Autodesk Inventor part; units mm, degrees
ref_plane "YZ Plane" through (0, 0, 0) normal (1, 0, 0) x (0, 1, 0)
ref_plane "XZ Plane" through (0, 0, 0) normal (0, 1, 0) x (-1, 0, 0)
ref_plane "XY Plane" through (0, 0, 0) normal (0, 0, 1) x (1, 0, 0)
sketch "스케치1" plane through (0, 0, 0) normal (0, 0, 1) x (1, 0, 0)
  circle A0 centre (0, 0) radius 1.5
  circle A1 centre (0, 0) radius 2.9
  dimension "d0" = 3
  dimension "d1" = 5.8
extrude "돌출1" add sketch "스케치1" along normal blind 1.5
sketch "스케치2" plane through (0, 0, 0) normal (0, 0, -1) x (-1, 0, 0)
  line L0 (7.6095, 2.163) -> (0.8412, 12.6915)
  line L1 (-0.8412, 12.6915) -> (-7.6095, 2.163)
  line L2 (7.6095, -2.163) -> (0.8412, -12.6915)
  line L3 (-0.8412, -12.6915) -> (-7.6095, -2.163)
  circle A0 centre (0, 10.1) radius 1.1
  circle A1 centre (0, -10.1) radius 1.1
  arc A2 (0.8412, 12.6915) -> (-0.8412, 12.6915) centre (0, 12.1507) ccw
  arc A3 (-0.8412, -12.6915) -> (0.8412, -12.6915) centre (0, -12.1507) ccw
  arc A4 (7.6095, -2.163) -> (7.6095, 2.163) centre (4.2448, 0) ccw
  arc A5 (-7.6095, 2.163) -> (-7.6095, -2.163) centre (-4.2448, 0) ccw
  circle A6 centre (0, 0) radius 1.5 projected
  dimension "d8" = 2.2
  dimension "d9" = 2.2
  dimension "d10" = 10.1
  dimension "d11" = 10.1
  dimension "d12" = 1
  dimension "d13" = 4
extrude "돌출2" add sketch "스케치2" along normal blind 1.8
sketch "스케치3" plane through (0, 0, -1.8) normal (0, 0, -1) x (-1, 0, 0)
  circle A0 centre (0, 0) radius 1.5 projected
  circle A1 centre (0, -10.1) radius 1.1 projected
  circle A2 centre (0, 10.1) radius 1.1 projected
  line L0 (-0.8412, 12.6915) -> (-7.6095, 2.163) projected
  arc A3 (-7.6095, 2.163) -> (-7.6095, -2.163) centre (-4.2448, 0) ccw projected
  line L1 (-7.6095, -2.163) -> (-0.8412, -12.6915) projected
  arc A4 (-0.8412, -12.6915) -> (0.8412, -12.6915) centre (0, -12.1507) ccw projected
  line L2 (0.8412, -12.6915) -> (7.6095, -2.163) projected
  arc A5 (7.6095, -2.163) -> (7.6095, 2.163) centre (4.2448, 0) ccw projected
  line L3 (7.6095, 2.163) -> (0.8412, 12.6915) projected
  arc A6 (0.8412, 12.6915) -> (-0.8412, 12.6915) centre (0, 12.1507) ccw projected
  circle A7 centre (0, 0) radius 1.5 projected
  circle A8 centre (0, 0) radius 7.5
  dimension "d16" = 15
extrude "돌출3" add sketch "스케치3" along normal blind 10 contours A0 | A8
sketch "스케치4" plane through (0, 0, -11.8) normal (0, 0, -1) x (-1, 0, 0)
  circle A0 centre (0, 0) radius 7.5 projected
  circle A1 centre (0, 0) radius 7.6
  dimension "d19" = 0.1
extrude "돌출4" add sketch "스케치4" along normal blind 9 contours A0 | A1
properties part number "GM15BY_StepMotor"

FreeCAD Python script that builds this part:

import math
import FreeCAD as App
import Part
import Sketcher

V = App.Vector
Q = App.Units.Quantity

doc = App.newDocument("Part")
params = doc.addObject("Spreadsheet::Sheet", "Params")
for row, (alias, value) in enumerate([
    ("sketch1_diameter", "3 mm"),
    ("sketch1_diameter2", "5.8 mm"),
    ("pad1_length", "1.5 mm"),
    ("sketch2_radius", "4 mm"),
    ("sketch2_radius2", "1 mm"),
    ("sketch2_diameter", "2.2 mm"),
    ("sketch2_diameter2", "3 mm"),
    ("pad2_length", "1.8 mm"),
    ("sketch3_diameter", "15 mm"),
    ("pad3_length", "10 mm"),
    ("sketch4_diameter", "15.2 mm"),
    ("pad4_length", "9 mm"),
], start=1):
    params.set(f"A{row}", alias)
    params.set(f"B{row}", "=" + value)
    params.setAlias(f"B{row}", alias)

body = doc.addObject("PartDesign::Body", "Body")

sketch1 = body.newObject("Sketcher::SketchObject", "Sketch")
sketch1.AttachmentSupport = (doc.getObject("XY_Plane"), [""])
sketch1.MapMode = "FlatFace"
sketch1.addGeometry(Part.Circle(V(0, 0, 0), V(0, 0, 1), 2.9), False)
sketch1.addGeometry(Part.Circle(V(0, 0, 0), V(0, 0, 1), 1.5), False)
sketch1.addConstraint(Sketcher.Constraint("Coincident", 0, 3, -1, 1))
sketch1.addConstraint(Sketcher.Constraint("Coincident", 1, 3, -1, 1))
sketch1.addConstraint(Sketcher.Constraint("Diameter", 1, Q("3 mm")))
sketch1.addConstraint(Sketcher.Constraint("Diameter", 0, Q("5.8 mm")))
sketch1.setExpression("Constraints[2]", "Params.sketch1_diameter")
sketch1.setExpression("Constraints[3]", "Params.sketch1_diameter2")
pad1 = body.newObject("PartDesign::Pad", "Pad")
pad1.Profile = sketch1
pad1.setExpression("Length", "Params.pad1_length")

sketch2 = body.newObject("Sketcher::SketchObject", "Sketch001")
sketch2.AttachmentSupport = (doc.getObject("XY_Plane"), [""])
sketch2.MapMode = "FlatFace"
sketch2.addGeometry(Part.ArcOfCircle(Part.Circle(V(-4.2, 0, 0), V(0, 0, 1), 4), math.radians(147), math.radians(213)), False)
sketch2.addGeometry(Part.LineSegment(V(-7.6, 2.2, 0), V(-0.8, 12.7, 0)), False)
sketch2.addGeometry(Part.ArcOfCircle(Part.Circle(V(0, 12.2, 0), V(0, 0, 1), 1), math.radians(33), math.radians(147)), False)
sketch2.addGeometry(Part.LineSegment(V(0.8, 12.7, 0), V(7.6, 2.2, 0)), False)
sketch2.addGeometry(Part.ArcOfCircle(Part.Circle(V(4.2, 0, 0), V(0, 0, 1), 4), math.radians(-33), math.radians(33)), False)
sketch2.addGeometry(Part.LineSegment(V(7.6, -2.2, 0), V(0.8, -12.7, 0)), False)
sketch2.addGeometry(Part.ArcOfCircle(Part.Circle(V(0, -12.2, 0), V(0, 0, 1), 1), math.radians(-147), math.radians(-33)), False)
sketch2.addGeometry(Part.LineSegment(V(-0.8, -12.7, 0), V(-7.6, -2.2, 0)), False)
sketch2.addGeometry(Part.Circle(V(0, -10.1, 0), V(0, 0, 1), 1.1), False)
sketch2.addGeometry(Part.Circle(V(0, 0, 0), V(0, 0, 1), 1.5), False)
sketch2.addGeometry(Part.Circle(V(0, 10.1, 0), V(0, 0, 1), 1.1), False)
sketch2.addConstraint(Sketcher.Constraint("Tangent", 0, 1, 1, 1))
sketch2.addConstraint(Sketcher.Constraint("Tangent", 1, 2, 2, 2))
sketch2.addConstraint(Sketcher.Constraint("Tangent", 2, 1, 3, 1))
sketch2.addConstraint(Sketcher.Constraint("Tangent", 3, 2, 4, 2))
sketch2.addConstraint(Sketcher.Constraint("Tangent", 4, 1, 5, 1))
sketch2.addConstraint(Sketcher.Constraint("Tangent", 5, 2, 6, 2))
sketch2.addConstraint(Sketcher.Constraint("Tangent", 6, 1, 7, 1))
sketch2.addConstraint(Sketcher.Constraint("Tangent", 7, 2, 0, 2))
sketch2.addConstraint(Sketcher.Constraint("Coincident", 9, 3, -1, 1))
sketch2.addConstraint(Sketcher.Constraint("Equal", 0, 4))
sketch2.addConstraint(Sketcher.Constraint("Equal", 2, 6))
sketch2.addConstraint(Sketcher.Constraint("Equal", 8, 10))
sketch2.addConstraint(Sketcher.Constraint("Symmetric", 0, 3, 4, 3, -1, 1))
sketch2.addConstraint(Sketcher.Constraint("Symmetric", 2, 3, 6, 3, -1, 1))
sketch2.addConstraint(Sketcher.Constraint("Symmetric", 8, 3, 10, 3, -1, 1))
sketch2.addConstraint(Sketcher.Constraint("Symmetric", 1, 2, 2, 1, -2))
sketch2.addConstraint(Sketcher.Constraint("PointOnObject", 8, 3, -2))
sketch2.addConstraint(Sketcher.Constraint("Radius", 0, Q("4 mm")))
sketch2.addConstraint(Sketcher.Constraint("Radius", 2, Q("1 mm")))
sketch2.addConstraint(Sketcher.Constraint("Diameter", 8, Q("2.2 mm")))
sketch2.addConstraint(Sketcher.Constraint("Diameter", 9, Q("3 mm")))
sketch2.addConstraint(Sketcher.Constraint("DistanceY", 8, 3, -1, 1, Q("10.1 mm")))
sketch2.addConstraint(Sketcher.Constraint("DistanceY", -1, 1, 0, 1, Q("2.163 mm")))
sketch2.addConstraint(Sketcher.Constraint("Distance", 1, Q("12.5164 mm")))
sketch2.setExpression("Constraints[17]", "Params.sketch2_radius")
sketch2.setExpression("Constraints[18]", "Params.sketch2_radius2")
sketch2.setExpression("Constraints[19]", "Params.sketch2_diameter")
sketch2.setExpression("Constraints[20]", "Params.sketch2_diameter2")
pad2 = body.newObject("PartDesign::Pad", "Pad001")
pad2.Profile = sketch2
pad2.setExpression("Length", "Params.pad2_length")
pad2.Reversed = True

sketch3 = body.newObject("Sketcher::SketchObject", "Sketch002")
sketch3.AttachmentSupport = (doc.getObject("XY_Plane"), [""])
sketch3.MapMode = "FlatFace"
sketch3.AttachmentOffset = App.Placement(V(0, 0, -1.8), App.Rotation())
sketch3.addGeometry(Part.Circle(V(0, 0, 0), V(0, 0, 1), 8), False)
sketch3.addConstraint(Sketcher.Constraint("Coincident", 0, 3, -1, 1))
sketch3.addConstraint(Sketcher.Constraint("Diameter", 0, Q("15 mm")))
sketch3.setExpression("Constraints[1]", "Params.sketch3_diameter")
pad3 = body.newObject("PartDesign::Pad", "Pad002")
pad3.Profile = sketch3
pad3.setExpression("Length", "Params.pad3_length")
pad3.Reversed = True

sketch4 = body.newObject("Sketcher::SketchObject", "Sketch003")
sketch4.AttachmentSupport = (doc.getObject("XY_Plane"), [""])
sketch4.MapMode = "FlatFace"
sketch4.AttachmentOffset = App.Placement(V(0, 0, -11.8), App.Rotation())
sketch4.addGeometry(Part.Circle(V(0, 0, 0), V(0, 0, 1), 8), False)
sketch4.addConstraint(Sketcher.Constraint("Coincident", 0, 3, -1, 1))
sketch4.addConstraint(Sketcher.Constraint("Diameter", 0, Q("15.2 mm")))
sketch4.setExpression("Constraints[1]", "Params.sketch4_diameter")
pad4 = body.newObject("PartDesign::Pad", "Pad003")
pad4.Profile = sketch4
pad4.setExpression("Length", "Params.pad4_length")
pad4.Reversed = True

doc.recompute()
